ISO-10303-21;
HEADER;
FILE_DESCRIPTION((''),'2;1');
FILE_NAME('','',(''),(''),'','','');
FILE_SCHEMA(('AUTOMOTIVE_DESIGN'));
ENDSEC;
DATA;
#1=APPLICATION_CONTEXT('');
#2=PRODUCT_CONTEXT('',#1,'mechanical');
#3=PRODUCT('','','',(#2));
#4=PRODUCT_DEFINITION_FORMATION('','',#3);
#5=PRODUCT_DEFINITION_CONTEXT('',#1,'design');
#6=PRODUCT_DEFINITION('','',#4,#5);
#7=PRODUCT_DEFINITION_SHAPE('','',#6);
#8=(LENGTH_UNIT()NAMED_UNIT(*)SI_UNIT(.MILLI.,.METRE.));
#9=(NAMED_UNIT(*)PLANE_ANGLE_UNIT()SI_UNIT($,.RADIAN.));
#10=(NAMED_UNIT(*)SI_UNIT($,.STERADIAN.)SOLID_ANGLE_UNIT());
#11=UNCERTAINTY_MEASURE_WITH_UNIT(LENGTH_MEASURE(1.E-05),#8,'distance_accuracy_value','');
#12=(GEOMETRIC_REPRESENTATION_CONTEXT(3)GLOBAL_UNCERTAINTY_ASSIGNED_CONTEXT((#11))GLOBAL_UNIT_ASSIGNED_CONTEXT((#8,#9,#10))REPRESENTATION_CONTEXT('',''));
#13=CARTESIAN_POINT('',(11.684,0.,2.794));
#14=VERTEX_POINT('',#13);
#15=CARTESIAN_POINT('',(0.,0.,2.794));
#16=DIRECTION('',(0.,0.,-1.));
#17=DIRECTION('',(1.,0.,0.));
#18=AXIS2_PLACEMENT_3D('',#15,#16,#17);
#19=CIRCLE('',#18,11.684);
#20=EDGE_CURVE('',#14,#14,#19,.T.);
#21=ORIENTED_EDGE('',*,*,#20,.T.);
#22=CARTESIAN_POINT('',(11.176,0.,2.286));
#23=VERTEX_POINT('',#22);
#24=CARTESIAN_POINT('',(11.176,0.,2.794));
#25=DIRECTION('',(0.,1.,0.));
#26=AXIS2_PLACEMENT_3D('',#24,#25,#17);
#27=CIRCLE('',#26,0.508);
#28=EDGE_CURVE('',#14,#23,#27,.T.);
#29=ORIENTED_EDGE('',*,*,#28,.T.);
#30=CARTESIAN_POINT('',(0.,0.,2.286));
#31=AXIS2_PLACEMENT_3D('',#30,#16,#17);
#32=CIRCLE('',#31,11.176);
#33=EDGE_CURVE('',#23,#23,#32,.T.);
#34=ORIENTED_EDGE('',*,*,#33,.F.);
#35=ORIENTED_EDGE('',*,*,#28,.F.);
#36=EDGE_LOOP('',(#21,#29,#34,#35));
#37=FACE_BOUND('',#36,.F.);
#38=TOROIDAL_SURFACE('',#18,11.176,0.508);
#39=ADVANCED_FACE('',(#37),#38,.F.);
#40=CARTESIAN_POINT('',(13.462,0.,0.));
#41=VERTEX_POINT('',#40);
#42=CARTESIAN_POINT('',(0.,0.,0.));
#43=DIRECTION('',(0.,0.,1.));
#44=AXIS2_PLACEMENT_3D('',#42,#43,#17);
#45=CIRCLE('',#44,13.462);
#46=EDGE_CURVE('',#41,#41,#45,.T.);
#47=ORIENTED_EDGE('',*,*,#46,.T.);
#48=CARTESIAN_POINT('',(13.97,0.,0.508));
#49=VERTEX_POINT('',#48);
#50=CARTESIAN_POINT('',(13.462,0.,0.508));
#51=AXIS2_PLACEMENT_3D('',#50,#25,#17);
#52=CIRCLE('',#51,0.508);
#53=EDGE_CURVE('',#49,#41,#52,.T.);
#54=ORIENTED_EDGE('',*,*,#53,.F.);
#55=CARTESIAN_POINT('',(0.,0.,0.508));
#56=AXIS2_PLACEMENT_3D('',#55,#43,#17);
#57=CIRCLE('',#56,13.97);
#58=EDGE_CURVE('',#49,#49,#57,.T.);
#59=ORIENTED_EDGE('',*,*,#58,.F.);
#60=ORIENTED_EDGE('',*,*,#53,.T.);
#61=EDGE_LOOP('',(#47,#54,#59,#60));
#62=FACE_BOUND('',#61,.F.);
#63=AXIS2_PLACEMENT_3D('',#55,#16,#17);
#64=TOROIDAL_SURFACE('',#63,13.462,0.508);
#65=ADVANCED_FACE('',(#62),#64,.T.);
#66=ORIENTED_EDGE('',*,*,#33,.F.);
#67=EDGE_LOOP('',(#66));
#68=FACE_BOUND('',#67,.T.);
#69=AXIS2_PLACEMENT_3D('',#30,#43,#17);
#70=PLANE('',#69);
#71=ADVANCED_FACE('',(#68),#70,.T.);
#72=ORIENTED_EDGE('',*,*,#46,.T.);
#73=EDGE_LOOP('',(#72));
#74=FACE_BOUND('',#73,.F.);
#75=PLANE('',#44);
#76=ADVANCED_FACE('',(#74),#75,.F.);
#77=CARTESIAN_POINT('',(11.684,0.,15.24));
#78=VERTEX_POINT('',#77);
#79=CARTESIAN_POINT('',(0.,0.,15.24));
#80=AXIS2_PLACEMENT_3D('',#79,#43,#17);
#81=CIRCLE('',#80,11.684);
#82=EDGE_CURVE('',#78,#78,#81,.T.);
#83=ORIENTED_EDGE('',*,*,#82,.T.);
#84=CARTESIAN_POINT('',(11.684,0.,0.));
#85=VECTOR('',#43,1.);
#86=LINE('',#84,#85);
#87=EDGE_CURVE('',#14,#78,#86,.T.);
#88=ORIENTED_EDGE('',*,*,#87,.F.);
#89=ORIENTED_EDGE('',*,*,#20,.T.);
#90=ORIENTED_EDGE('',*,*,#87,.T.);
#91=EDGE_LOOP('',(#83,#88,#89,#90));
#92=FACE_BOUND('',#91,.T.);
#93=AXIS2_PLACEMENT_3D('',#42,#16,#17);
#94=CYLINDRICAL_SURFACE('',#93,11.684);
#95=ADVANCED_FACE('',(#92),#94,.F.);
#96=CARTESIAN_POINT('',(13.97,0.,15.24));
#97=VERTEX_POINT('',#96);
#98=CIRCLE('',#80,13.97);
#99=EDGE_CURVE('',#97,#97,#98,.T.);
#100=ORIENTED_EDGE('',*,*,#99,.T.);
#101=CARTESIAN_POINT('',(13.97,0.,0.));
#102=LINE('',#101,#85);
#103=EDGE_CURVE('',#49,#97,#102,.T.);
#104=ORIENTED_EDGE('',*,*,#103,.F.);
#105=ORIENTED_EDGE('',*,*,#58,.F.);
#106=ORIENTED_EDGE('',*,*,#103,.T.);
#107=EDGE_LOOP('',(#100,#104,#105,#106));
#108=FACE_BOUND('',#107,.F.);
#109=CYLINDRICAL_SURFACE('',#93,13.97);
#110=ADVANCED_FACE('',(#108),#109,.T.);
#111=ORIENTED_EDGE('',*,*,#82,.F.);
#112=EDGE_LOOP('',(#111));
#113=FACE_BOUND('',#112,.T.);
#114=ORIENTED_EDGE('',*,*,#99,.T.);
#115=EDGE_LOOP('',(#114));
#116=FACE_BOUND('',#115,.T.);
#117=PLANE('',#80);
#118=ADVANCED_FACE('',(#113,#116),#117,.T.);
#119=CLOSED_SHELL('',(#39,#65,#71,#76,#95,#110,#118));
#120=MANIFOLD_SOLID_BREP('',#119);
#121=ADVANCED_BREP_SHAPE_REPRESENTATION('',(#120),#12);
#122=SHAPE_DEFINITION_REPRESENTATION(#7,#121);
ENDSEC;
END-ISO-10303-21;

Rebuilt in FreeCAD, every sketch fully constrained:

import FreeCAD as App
import Part
import Sketcher

V = App.Vector
Q = App.Units.Quantity


def edges_at(feature, points):
    """Names of the edges that pass closest to the given points."""
    edges = feature.Shape.Edges
    near = lambda p: min(range(len(edges)), key=lambda i: edges[i].distToShape(Part.Vertex(*p))[0])
    return sorted({f"Edge{near(p) + 1}" for p in points})


def faces_at(feature, points):
    """Names of the faces that lie closest to the given points."""
    faces = feature.Shape.Faces
    near = lambda p: min(range(len(faces)), key=lambda i: faces[i].distToShape(Part.Vertex(*p))[0])
    return sorted({f"Face{near(p) + 1}" for p in points})

doc = App.newDocument("Part")
params = doc.addObject("Spreadsheet::Sheet", "Params")
for row, (alias, value) in enumerate([
    ("sketch1_diameter", "1.1 in"),
    ("pad1_length", "0.6 in"),
    ("thickness_wall", "0.09 in"),
    ("fillet_radius", "0.02 in"),
    ("fillet2_radius", "0.02 in"),
], start=1):
    params.set(f"A{row}", alias)
    params.set(f"B{row}", "=" + value)
    params.setAlias(f"B{row}", alias)

body = doc.addObject("PartDesign::Body", "Body")

# Sketch on XY plane
sketch1 = body.newObject("Sketcher::SketchObject", "Sketch")
sketch1.AttachmentSupport = (doc.getObject("XY_Plane"), [""])
sketch1.MapMode = "FlatFace"
sketch1.addGeometry(Part.Circle(V(0, 0, 0), V(0, 0, 1), 14), False)
sketch1.addConstraint(Sketcher.Constraint("Coincident", 0, 3, -1, 1))
sketch1.addConstraint(Sketcher.Constraint("Diameter", 0, Q("1.1 in")))
sketch1.setExpression("Constraints[1]", "Params.sketch1_diameter")
pad1 = body.newObject("PartDesign::Pad", "Pad")
pad1.Profile = sketch1
pad1.setExpression("Length", "Params.pad1_length")
doc.recompute()

thickness = body.newObject("PartDesign::Thickness", "Thickness")
thickness.Base = (pad1, faces_at(pad1, [(0, 0, 15.24)]))
thickness.setExpression("Value", "Params.thickness_wall")
thickness.Reversed = True
thickness.Join = "Arc"
doc.recompute()

fillet = body.newObject("PartDesign::Fillet", "Fillet")
fillet.Base = (thickness, edges_at(thickness, [(-11.684, 0, 2.286)]))
fillet.setExpression("Radius", "Params.fillet_radius")
doc.recompute()

fillet2 = body.newObject("PartDesign::Fillet", "Fillet001")
fillet2.Base = (fillet, edges_at(fillet, [(-13.97, 0, 0)]))
fillet2.setExpression("Radius", "Params.fillet2_radius")

doc.recompute()
